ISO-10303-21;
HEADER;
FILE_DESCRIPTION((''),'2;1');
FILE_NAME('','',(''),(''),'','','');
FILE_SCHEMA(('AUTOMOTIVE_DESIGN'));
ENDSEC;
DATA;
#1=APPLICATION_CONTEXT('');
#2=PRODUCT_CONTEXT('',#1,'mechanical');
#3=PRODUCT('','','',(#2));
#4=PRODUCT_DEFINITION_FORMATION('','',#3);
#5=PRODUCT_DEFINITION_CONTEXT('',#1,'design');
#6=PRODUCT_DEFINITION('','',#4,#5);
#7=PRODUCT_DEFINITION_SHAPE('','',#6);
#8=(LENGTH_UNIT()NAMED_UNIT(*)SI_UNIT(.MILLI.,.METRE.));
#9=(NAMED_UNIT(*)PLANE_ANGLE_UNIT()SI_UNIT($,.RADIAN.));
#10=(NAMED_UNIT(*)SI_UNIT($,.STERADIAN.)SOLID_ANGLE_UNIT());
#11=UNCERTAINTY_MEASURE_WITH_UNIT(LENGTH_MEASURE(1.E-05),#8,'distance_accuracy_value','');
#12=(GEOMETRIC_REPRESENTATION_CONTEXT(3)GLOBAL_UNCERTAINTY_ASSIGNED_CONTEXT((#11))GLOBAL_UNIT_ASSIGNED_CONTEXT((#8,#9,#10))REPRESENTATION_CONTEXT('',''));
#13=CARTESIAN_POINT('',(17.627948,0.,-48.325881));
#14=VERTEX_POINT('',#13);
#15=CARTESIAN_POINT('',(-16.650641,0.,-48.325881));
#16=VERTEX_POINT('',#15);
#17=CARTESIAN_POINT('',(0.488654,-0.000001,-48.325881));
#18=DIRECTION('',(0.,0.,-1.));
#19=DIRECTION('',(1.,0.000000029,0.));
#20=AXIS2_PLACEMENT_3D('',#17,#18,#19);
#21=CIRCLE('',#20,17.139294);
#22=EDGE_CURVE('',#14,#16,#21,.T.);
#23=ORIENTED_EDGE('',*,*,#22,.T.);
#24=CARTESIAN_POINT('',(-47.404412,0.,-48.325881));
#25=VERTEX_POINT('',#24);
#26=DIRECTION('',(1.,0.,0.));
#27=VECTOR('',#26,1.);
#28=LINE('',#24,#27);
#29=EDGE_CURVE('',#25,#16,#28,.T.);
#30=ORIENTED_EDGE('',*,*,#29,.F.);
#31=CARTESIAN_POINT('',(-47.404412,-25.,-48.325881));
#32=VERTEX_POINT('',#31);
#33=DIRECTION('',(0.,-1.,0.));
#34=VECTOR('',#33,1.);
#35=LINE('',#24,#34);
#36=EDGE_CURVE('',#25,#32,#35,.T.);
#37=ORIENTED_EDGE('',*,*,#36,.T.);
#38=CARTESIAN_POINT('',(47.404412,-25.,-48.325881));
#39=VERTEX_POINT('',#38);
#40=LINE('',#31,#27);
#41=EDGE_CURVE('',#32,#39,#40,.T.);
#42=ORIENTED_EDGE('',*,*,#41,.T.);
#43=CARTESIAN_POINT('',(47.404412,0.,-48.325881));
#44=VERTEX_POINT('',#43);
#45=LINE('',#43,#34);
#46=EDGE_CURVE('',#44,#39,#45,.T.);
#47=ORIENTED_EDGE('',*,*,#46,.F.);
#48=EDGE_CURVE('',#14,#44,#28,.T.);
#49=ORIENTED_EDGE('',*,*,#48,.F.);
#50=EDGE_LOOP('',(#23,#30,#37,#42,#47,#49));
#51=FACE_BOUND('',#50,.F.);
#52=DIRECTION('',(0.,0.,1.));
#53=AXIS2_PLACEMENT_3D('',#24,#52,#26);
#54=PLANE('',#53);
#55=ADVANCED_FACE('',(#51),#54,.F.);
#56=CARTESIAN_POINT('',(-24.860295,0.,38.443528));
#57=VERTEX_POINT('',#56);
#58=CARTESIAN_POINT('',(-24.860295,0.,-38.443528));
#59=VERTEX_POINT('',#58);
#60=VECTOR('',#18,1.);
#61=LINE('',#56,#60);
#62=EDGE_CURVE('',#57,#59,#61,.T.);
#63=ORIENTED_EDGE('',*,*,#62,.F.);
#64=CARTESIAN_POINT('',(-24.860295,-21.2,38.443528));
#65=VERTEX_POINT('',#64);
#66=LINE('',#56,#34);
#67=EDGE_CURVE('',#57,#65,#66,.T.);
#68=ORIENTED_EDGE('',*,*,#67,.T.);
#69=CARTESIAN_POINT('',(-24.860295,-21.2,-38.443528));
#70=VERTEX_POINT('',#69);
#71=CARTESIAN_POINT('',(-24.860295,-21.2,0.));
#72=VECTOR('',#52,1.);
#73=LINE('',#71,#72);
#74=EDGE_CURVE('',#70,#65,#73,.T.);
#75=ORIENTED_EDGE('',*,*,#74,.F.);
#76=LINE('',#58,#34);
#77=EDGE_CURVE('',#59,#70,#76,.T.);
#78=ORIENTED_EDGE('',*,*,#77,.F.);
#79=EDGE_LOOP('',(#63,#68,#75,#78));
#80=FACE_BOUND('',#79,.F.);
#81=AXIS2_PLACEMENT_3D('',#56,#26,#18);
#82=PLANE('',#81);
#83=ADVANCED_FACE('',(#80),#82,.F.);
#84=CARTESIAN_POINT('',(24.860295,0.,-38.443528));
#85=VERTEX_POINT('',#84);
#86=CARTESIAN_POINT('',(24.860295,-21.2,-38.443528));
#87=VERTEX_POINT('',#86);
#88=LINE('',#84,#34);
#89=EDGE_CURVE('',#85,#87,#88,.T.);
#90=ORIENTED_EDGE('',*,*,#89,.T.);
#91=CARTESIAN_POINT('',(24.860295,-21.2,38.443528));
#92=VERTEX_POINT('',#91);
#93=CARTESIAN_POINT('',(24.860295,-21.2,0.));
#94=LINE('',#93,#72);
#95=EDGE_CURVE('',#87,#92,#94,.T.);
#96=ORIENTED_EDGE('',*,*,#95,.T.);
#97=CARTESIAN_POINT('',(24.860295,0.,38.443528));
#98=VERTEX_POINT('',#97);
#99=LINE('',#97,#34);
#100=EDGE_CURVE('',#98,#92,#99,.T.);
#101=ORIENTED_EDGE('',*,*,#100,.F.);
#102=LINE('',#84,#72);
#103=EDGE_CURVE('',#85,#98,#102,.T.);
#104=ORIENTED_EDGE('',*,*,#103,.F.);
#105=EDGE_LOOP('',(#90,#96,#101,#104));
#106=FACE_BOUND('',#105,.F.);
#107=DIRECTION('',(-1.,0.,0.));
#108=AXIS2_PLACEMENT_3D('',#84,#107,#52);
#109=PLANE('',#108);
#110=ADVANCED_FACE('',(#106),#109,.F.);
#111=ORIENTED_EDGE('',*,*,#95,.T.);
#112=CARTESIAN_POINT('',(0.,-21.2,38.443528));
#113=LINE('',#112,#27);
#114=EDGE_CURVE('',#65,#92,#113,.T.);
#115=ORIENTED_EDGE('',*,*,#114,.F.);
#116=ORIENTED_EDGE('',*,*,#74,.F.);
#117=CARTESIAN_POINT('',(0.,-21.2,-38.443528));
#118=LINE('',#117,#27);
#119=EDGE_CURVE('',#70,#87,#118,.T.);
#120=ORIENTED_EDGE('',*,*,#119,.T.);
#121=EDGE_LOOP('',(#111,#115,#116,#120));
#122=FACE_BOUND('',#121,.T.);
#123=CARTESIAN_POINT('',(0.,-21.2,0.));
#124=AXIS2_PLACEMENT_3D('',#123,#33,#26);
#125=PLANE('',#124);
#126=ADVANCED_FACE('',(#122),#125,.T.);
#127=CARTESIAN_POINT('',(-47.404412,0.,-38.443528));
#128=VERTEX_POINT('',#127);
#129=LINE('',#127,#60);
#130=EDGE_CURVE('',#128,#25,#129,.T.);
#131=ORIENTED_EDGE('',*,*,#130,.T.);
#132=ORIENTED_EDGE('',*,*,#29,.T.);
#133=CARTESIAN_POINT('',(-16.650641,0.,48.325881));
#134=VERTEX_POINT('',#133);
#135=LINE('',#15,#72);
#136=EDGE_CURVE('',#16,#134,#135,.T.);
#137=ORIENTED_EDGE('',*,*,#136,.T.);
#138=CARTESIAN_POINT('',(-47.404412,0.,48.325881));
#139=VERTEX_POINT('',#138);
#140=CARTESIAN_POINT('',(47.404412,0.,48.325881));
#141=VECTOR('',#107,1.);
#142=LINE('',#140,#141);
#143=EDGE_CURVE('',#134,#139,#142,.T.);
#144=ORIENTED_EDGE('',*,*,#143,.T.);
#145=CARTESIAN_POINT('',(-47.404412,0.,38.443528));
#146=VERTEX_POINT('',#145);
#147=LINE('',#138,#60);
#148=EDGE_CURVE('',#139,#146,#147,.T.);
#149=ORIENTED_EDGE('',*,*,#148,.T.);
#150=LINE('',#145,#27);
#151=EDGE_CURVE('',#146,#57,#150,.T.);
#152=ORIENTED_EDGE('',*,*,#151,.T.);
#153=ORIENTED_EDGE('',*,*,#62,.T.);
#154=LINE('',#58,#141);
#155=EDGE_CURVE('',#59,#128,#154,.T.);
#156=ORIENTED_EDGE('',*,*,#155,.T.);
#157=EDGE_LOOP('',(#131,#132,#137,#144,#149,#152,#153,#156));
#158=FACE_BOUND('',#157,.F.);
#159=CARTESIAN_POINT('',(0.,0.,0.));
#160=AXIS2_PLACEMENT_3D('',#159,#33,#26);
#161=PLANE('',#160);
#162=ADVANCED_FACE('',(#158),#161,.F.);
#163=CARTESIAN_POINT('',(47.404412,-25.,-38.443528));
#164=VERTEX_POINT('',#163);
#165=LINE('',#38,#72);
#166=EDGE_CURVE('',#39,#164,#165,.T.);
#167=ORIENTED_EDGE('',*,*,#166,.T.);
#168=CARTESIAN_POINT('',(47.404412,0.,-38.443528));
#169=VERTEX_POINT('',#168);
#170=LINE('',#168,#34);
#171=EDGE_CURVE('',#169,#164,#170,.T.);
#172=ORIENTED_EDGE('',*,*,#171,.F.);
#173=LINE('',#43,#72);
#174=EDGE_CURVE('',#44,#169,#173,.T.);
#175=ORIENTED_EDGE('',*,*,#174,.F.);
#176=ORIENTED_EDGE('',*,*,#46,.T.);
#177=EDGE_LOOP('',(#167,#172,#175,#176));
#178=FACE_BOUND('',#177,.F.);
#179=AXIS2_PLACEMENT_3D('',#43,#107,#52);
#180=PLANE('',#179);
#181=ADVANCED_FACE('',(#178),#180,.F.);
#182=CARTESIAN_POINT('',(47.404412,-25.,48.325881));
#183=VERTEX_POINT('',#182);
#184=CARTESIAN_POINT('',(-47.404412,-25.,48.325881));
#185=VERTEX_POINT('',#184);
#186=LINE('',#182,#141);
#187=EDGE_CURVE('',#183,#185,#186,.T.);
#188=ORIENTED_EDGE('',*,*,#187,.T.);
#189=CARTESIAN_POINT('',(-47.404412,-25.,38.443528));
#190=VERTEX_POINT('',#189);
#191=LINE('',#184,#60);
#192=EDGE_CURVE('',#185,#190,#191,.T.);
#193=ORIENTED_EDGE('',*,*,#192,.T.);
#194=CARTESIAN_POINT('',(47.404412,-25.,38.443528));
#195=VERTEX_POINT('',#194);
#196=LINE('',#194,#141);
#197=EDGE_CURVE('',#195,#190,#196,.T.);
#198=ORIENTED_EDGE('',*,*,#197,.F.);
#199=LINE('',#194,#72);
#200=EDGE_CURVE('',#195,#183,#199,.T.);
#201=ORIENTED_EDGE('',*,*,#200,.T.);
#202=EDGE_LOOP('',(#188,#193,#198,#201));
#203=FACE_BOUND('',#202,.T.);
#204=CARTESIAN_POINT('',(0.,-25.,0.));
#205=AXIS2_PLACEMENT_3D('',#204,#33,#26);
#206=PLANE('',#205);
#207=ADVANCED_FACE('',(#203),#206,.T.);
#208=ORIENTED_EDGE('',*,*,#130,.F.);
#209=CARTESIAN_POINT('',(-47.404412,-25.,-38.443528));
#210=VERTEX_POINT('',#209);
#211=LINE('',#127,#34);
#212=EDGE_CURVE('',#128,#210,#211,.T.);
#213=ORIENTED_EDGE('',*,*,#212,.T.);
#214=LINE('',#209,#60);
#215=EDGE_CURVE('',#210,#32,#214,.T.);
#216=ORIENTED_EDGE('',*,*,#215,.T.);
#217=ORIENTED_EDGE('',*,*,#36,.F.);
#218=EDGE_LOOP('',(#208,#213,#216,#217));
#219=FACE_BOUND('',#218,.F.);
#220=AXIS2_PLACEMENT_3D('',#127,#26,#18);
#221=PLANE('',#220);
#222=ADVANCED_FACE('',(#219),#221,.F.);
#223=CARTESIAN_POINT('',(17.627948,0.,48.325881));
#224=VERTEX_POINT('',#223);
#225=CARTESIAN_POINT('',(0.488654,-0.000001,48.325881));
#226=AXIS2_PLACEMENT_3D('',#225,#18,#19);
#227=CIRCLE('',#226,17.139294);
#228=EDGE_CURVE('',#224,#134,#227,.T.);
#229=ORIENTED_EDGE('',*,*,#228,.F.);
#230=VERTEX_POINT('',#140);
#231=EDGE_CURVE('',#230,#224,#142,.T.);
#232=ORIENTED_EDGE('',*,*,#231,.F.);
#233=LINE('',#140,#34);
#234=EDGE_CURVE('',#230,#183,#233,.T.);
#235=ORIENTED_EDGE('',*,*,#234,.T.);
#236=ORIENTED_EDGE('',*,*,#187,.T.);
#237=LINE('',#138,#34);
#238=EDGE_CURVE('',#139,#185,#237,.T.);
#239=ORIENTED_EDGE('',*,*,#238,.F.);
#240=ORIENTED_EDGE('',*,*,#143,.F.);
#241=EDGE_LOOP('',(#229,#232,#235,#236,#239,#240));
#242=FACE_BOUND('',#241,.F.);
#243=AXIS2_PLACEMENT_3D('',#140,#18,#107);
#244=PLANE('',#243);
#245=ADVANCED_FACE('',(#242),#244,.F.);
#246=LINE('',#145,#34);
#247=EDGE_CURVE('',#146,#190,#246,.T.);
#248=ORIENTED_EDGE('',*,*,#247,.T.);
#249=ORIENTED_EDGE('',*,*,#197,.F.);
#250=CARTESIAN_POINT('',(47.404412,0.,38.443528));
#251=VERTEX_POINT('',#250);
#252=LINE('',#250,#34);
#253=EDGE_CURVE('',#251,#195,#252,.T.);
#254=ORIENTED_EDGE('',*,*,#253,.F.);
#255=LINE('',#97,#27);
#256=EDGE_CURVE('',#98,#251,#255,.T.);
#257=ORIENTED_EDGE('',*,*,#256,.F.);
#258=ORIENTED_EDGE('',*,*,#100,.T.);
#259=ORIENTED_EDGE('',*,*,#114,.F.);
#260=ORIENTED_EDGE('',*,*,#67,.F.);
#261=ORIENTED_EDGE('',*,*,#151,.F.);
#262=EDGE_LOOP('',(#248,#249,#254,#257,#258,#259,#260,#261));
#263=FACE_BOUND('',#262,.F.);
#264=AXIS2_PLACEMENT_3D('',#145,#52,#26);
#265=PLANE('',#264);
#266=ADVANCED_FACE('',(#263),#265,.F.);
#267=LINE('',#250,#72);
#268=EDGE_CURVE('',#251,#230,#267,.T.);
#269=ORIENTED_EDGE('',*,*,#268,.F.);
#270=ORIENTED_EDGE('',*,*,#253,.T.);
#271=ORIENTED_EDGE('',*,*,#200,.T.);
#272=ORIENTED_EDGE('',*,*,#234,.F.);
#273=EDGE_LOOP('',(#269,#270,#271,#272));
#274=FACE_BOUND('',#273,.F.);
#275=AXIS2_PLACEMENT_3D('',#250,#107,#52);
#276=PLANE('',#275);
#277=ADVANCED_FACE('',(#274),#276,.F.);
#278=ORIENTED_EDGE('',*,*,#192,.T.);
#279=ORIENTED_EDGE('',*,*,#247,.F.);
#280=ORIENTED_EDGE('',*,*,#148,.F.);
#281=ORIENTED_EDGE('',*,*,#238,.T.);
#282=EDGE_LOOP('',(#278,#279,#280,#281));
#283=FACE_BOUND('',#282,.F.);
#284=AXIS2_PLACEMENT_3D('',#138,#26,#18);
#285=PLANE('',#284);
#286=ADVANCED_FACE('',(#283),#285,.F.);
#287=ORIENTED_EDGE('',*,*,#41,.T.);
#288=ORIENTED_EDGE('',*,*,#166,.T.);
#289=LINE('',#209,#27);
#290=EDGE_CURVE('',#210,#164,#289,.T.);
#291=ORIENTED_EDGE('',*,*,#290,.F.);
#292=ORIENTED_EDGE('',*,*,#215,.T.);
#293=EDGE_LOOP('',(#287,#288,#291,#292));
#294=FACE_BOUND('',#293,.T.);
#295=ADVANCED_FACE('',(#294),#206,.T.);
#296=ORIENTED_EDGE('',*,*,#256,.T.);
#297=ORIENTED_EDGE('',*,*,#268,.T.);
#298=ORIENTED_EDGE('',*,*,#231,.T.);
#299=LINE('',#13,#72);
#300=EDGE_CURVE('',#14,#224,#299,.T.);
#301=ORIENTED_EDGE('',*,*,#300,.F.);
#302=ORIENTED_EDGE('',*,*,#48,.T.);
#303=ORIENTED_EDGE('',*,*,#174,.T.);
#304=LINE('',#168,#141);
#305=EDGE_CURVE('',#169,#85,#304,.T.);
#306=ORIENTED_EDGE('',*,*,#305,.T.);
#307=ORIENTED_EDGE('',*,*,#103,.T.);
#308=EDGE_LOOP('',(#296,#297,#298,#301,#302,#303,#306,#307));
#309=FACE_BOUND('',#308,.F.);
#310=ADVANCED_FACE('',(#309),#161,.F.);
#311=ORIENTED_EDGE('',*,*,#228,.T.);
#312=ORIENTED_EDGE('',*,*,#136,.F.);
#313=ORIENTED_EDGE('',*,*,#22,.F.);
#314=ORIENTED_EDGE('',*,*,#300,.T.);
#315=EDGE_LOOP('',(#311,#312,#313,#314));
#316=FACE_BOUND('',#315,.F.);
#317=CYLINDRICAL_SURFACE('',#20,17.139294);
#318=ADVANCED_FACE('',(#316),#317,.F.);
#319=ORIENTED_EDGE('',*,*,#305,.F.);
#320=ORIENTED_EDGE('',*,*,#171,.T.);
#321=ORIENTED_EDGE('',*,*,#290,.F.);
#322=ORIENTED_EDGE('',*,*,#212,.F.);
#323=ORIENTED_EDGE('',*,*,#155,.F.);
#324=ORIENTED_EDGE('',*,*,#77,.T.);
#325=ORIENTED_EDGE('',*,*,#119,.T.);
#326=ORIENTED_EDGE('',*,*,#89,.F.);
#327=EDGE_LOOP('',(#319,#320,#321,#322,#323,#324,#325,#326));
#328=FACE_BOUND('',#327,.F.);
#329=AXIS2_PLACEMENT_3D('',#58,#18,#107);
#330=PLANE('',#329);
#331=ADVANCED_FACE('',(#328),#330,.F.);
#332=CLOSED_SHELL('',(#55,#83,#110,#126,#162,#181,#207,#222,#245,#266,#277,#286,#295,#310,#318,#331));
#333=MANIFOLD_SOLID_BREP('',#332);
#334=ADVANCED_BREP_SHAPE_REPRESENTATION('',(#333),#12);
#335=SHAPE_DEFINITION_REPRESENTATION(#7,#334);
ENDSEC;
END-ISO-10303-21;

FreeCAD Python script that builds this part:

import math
import FreeCAD as App
import Part
import Sketcher
Q = App.Units.Quantity

doc = App.newDocument("Part")
body = doc.addObject("PartDesign::Body", "Body")

sketch1 = body.newObject("Sketcher::SketchObject", "Sketch")
sketch1.AttachmentSupport = (doc.getObject("XZ_Plane"), [""])
sketch1.MapMode = "FlatFace"
sketch1.addGeometry(Part.LineSegment(App.Vector(-47, 48, 0), App.Vector(-47, 38, 0)), False)
sketch1.addGeometry(Part.LineSegment(App.Vector(-47, 38, 0), App.Vector(-25, 38, 0)), False)
sketch1.addGeometry(Part.LineSegment(App.Vector(-25, 38, 0), App.Vector(-25, -38, 0)), False)
sketch1.addGeometry(Part.LineSegment(App.Vector(-25, -38, 0), App.Vector(-47, -38, 0)), False)
sketch1.addGeometry(Part.LineSegment(App.Vector(-47, -38, 0), App.Vector(-47, -48, 0)), False)
sketch1.addGeometry(Part.LineSegment(App.Vector(-47, -48, 0), App.Vector(47, -48, 0)), False)
sketch1.addGeometry(Part.LineSegment(App.Vector(47, -48, 0), App.Vector(47, -38, 0)), False)
sketch1.addGeometry(Part.LineSegment(App.Vector(47, -38, 0), App.Vector(25, -38, 0)), False)
sketch1.addGeometry(Part.LineSegment(App.Vector(25, -38, 0), App.Vector(25, 38, 0)), False)
sketch1.addGeometry(Part.LineSegment(App.Vector(25, 38, 0), App.Vector(47, 38, 0)), False)
sketch1.addGeometry(Part.LineSegment(App.Vector(47, 38, 0), App.Vector(47, 48, 0)), False)
sketch1.addGeometry(Part.LineSegment(App.Vector(47, 48, 0), App.Vector(-47, 48, 0)), False)
sketch1.addConstraint(Sketcher.Constraint("Coincident", 0, 2, 1, 1))
sketch1.addConstraint(Sketcher.Constraint("Coincident", 1, 2, 2, 1))
sketch1.addConstraint(Sketcher.Constraint("Coincident", 2, 2, 3, 1))
sketch1.addConstraint(Sketcher.Constraint("Coincident", 3, 2, 4, 1))
sketch1.addConstraint(Sketcher.Constraint("Coincident", 4, 2, 5, 1))
sketch1.addConstraint(Sketcher.Constraint("Coincident", 5, 2, 6, 1))
sketch1.addConstraint(Sketcher.Constraint("Coincident", 6, 2, 7, 1))
sketch1.addConstraint(Sketcher.Constraint("Coincident", 7, 2, 8, 1))
sketch1.addConstraint(Sketcher.Constraint("Coincident", 8, 2, 9, 1))
sketch1.addConstraint(Sketcher.Constraint("Coincident", 9, 2, 10, 1))
sketch1.addConstraint(Sketcher.Constraint("Coincident", 10, 2, 11, 1))
sketch1.addConstraint(Sketcher.Constraint("Coincident", 11, 2, 0, 1))
sketch1.addConstraint(Sketcher.Constraint("Vertical", 0))
sketch1.addConstraint(Sketcher.Constraint("Horizontal", 1))
sketch1.addConstraint(Sketcher.Constraint("Vertical", 2))
sketch1.addConstraint(Sketcher.Constraint("Horizontal", 3))
sketch1.addConstraint(Sketcher.Constraint("Vertical", 4))
sketch1.addConstraint(Sketcher.Constraint("Horizontal", 5))
sketch1.addConstraint(Sketcher.Constraint("Vertical", 6))
sketch1.addConstraint(Sketcher.Constraint("Horizontal", 7))
sketch1.addConstraint(Sketcher.Constraint("Vertical", 8))
sketch1.addConstraint(Sketcher.Constraint("Horizontal", 9))
sketch1.addConstraint(Sketcher.Constraint("Vertical", 10))
sketch1.addConstraint(Sketcher.Constraint("Horizontal", 11))
sketch1.addConstraint(Sketcher.Constraint("Symmetric", 0, 2, 6, 2, -1, 1))
sketch1.addConstraint(Sketcher.Constraint("Symmetric", 2, 2, 8, 2, -1, 1))
sketch1.addConstraint(Sketcher.Constraint("Symmetric", 4, 2, 10, 2, -1, 1))
sketch1.addConstraint(Sketcher.Constraint("Symmetric", 3, 2, 6, 2, -2))
sketch1.addConstraint(Sketcher.Constraint("DistanceX", 1, 1, 1, 2, Q("22.544117 mm")))
sketch1.addConstraint(Sketcher.Constraint("DistanceX", 5, 1, 5, 2, Q("94.808824 mm")))
sketch1.addConstraint(Sketcher.Constraint("DistanceY", 0, 2, 0, 1, Q("9.882353 mm")))
sketch1.addConstraint(Sketcher.Constraint("DistanceY", 2, 2, 2, 1, Q("76.887056 mm")))
pad1 = body.newObject("PartDesign::Pad", "Pad")
pad1.Profile = sketch1
pad1.Length = 25

sketch2 = body.newObject("Sketcher::SketchObject", "Sketch001")
sketch2.AttachmentSupport = (doc.getObject("XZ_Plane"), [""])
sketch2.MapMode = "FlatFace"
sketch2.AttachmentOffset = App.Placement(App.Vector(0, 0, 25), App.Rotation())
sketch2.addGeometry(Part.LineSegment(App.Vector(-25, 38, 0), App.Vector(-25, -38, 0)), False)
sketch2.addGeometry(Part.LineSegment(App.Vector(-25, -38, 0), App.Vector(25, -38, 0)), False)
sketch2.addGeometry(Part.LineSegment(App.Vector(25, -38, 0), App.Vector(25, 38, 0)), False)
sketch2.addGeometry(Part.LineSegment(App.Vector(25, 38, 0), App.Vector(-25, 38, 0)), False)
sketch2.addConstraint(Sketcher.Constraint("Coincident", 0, 2, 1, 1))
sketch2.addConstraint(Sketcher.Constraint("Coincident", 1, 2, 2, 1))
sketch2.addConstraint(Sketcher.Constraint("Coincident", 2, 2, 3, 1))
sketch2.addConstraint(Sketcher.Constraint("Coincident", 3, 2, 0, 1))
sketch2.addConstraint(Sketcher.Constraint("Vertical", 0))
sketch2.addConstraint(Sketcher.Constraint("Horizontal", 1))
sketch2.addConstraint(Sketcher.Constraint("Vertical", 2))
sketch2.addConstraint(Sketcher.Constraint("Horizontal", 3))
sketch2.addConstraint(Sketcher.Constraint("Symmetric", 0, 2, 2, 2, -1, 1))
sketch2.addConstraint(Sketcher.Constraint("DistanceX", 1, 1, 1, 2, Q("49.72059 mm")))
sketch2.addConstraint(Sketcher.Constraint("DistanceY", 0, 2, 0, 1, Q("76.887056 mm")))
pocket1 = body.newObject("PartDesign::Pocket", "Pocket")
pocket1.Profile = sketch2
pocket1.Length = 3.8

sketch3 = body.newObject("Sketcher::SketchObject", "Sketch002")
sketch3.AttachmentSupport = (doc.getObject("XY_Plane"), [""])
sketch3.MapMode = "FlatFace"
sketch3.AttachmentOffset = App.Placement(App.Vector(0, 0, -48.325881), App.Rotation())
sketch3.addGeometry(Part.LineSegment(App.Vector(-17, 0, 0), App.Vector(18, 0, 0)), False)
sketch3.addGeometry(Part.ArcOfCircle(Part.Circle(App.Vector(0, 0, 0), App.Vector(0, 0, 1), 17), math.radians(180), math.radians(360)), False)
sketch3.addConstraint(Sketcher.Constraint("Coincident", 0, 1, 1, 1))
sketch3.addConstraint(Sketcher.Constraint("Coincident", 1, 2, 0, 2))
sketch3.addConstraint(Sketcher.Constraint("Horizontal", 0))
sketch3.addConstraint(Sketcher.Constraint("PointOnObject", 1, 3, -1))
sketch3.addConstraint(Sketcher.Constraint("PointOnObject", 0, 1, -1))
sketch3.addConstraint(Sketcher.Constraint("Radius", 1, Q("17.139294 mm")))
sketch3.addConstraint(Sketcher.Constraint("DistanceX", 0, 1, -1, 1, Q("16.650641 mm")))
pocket2 = body.newObject("PartDesign::Pocket", "Pocket001")
pocket2.Profile = sketch3
pocket2.Length = 97.5
pocket2.Reversed = True

doc.recompute()
